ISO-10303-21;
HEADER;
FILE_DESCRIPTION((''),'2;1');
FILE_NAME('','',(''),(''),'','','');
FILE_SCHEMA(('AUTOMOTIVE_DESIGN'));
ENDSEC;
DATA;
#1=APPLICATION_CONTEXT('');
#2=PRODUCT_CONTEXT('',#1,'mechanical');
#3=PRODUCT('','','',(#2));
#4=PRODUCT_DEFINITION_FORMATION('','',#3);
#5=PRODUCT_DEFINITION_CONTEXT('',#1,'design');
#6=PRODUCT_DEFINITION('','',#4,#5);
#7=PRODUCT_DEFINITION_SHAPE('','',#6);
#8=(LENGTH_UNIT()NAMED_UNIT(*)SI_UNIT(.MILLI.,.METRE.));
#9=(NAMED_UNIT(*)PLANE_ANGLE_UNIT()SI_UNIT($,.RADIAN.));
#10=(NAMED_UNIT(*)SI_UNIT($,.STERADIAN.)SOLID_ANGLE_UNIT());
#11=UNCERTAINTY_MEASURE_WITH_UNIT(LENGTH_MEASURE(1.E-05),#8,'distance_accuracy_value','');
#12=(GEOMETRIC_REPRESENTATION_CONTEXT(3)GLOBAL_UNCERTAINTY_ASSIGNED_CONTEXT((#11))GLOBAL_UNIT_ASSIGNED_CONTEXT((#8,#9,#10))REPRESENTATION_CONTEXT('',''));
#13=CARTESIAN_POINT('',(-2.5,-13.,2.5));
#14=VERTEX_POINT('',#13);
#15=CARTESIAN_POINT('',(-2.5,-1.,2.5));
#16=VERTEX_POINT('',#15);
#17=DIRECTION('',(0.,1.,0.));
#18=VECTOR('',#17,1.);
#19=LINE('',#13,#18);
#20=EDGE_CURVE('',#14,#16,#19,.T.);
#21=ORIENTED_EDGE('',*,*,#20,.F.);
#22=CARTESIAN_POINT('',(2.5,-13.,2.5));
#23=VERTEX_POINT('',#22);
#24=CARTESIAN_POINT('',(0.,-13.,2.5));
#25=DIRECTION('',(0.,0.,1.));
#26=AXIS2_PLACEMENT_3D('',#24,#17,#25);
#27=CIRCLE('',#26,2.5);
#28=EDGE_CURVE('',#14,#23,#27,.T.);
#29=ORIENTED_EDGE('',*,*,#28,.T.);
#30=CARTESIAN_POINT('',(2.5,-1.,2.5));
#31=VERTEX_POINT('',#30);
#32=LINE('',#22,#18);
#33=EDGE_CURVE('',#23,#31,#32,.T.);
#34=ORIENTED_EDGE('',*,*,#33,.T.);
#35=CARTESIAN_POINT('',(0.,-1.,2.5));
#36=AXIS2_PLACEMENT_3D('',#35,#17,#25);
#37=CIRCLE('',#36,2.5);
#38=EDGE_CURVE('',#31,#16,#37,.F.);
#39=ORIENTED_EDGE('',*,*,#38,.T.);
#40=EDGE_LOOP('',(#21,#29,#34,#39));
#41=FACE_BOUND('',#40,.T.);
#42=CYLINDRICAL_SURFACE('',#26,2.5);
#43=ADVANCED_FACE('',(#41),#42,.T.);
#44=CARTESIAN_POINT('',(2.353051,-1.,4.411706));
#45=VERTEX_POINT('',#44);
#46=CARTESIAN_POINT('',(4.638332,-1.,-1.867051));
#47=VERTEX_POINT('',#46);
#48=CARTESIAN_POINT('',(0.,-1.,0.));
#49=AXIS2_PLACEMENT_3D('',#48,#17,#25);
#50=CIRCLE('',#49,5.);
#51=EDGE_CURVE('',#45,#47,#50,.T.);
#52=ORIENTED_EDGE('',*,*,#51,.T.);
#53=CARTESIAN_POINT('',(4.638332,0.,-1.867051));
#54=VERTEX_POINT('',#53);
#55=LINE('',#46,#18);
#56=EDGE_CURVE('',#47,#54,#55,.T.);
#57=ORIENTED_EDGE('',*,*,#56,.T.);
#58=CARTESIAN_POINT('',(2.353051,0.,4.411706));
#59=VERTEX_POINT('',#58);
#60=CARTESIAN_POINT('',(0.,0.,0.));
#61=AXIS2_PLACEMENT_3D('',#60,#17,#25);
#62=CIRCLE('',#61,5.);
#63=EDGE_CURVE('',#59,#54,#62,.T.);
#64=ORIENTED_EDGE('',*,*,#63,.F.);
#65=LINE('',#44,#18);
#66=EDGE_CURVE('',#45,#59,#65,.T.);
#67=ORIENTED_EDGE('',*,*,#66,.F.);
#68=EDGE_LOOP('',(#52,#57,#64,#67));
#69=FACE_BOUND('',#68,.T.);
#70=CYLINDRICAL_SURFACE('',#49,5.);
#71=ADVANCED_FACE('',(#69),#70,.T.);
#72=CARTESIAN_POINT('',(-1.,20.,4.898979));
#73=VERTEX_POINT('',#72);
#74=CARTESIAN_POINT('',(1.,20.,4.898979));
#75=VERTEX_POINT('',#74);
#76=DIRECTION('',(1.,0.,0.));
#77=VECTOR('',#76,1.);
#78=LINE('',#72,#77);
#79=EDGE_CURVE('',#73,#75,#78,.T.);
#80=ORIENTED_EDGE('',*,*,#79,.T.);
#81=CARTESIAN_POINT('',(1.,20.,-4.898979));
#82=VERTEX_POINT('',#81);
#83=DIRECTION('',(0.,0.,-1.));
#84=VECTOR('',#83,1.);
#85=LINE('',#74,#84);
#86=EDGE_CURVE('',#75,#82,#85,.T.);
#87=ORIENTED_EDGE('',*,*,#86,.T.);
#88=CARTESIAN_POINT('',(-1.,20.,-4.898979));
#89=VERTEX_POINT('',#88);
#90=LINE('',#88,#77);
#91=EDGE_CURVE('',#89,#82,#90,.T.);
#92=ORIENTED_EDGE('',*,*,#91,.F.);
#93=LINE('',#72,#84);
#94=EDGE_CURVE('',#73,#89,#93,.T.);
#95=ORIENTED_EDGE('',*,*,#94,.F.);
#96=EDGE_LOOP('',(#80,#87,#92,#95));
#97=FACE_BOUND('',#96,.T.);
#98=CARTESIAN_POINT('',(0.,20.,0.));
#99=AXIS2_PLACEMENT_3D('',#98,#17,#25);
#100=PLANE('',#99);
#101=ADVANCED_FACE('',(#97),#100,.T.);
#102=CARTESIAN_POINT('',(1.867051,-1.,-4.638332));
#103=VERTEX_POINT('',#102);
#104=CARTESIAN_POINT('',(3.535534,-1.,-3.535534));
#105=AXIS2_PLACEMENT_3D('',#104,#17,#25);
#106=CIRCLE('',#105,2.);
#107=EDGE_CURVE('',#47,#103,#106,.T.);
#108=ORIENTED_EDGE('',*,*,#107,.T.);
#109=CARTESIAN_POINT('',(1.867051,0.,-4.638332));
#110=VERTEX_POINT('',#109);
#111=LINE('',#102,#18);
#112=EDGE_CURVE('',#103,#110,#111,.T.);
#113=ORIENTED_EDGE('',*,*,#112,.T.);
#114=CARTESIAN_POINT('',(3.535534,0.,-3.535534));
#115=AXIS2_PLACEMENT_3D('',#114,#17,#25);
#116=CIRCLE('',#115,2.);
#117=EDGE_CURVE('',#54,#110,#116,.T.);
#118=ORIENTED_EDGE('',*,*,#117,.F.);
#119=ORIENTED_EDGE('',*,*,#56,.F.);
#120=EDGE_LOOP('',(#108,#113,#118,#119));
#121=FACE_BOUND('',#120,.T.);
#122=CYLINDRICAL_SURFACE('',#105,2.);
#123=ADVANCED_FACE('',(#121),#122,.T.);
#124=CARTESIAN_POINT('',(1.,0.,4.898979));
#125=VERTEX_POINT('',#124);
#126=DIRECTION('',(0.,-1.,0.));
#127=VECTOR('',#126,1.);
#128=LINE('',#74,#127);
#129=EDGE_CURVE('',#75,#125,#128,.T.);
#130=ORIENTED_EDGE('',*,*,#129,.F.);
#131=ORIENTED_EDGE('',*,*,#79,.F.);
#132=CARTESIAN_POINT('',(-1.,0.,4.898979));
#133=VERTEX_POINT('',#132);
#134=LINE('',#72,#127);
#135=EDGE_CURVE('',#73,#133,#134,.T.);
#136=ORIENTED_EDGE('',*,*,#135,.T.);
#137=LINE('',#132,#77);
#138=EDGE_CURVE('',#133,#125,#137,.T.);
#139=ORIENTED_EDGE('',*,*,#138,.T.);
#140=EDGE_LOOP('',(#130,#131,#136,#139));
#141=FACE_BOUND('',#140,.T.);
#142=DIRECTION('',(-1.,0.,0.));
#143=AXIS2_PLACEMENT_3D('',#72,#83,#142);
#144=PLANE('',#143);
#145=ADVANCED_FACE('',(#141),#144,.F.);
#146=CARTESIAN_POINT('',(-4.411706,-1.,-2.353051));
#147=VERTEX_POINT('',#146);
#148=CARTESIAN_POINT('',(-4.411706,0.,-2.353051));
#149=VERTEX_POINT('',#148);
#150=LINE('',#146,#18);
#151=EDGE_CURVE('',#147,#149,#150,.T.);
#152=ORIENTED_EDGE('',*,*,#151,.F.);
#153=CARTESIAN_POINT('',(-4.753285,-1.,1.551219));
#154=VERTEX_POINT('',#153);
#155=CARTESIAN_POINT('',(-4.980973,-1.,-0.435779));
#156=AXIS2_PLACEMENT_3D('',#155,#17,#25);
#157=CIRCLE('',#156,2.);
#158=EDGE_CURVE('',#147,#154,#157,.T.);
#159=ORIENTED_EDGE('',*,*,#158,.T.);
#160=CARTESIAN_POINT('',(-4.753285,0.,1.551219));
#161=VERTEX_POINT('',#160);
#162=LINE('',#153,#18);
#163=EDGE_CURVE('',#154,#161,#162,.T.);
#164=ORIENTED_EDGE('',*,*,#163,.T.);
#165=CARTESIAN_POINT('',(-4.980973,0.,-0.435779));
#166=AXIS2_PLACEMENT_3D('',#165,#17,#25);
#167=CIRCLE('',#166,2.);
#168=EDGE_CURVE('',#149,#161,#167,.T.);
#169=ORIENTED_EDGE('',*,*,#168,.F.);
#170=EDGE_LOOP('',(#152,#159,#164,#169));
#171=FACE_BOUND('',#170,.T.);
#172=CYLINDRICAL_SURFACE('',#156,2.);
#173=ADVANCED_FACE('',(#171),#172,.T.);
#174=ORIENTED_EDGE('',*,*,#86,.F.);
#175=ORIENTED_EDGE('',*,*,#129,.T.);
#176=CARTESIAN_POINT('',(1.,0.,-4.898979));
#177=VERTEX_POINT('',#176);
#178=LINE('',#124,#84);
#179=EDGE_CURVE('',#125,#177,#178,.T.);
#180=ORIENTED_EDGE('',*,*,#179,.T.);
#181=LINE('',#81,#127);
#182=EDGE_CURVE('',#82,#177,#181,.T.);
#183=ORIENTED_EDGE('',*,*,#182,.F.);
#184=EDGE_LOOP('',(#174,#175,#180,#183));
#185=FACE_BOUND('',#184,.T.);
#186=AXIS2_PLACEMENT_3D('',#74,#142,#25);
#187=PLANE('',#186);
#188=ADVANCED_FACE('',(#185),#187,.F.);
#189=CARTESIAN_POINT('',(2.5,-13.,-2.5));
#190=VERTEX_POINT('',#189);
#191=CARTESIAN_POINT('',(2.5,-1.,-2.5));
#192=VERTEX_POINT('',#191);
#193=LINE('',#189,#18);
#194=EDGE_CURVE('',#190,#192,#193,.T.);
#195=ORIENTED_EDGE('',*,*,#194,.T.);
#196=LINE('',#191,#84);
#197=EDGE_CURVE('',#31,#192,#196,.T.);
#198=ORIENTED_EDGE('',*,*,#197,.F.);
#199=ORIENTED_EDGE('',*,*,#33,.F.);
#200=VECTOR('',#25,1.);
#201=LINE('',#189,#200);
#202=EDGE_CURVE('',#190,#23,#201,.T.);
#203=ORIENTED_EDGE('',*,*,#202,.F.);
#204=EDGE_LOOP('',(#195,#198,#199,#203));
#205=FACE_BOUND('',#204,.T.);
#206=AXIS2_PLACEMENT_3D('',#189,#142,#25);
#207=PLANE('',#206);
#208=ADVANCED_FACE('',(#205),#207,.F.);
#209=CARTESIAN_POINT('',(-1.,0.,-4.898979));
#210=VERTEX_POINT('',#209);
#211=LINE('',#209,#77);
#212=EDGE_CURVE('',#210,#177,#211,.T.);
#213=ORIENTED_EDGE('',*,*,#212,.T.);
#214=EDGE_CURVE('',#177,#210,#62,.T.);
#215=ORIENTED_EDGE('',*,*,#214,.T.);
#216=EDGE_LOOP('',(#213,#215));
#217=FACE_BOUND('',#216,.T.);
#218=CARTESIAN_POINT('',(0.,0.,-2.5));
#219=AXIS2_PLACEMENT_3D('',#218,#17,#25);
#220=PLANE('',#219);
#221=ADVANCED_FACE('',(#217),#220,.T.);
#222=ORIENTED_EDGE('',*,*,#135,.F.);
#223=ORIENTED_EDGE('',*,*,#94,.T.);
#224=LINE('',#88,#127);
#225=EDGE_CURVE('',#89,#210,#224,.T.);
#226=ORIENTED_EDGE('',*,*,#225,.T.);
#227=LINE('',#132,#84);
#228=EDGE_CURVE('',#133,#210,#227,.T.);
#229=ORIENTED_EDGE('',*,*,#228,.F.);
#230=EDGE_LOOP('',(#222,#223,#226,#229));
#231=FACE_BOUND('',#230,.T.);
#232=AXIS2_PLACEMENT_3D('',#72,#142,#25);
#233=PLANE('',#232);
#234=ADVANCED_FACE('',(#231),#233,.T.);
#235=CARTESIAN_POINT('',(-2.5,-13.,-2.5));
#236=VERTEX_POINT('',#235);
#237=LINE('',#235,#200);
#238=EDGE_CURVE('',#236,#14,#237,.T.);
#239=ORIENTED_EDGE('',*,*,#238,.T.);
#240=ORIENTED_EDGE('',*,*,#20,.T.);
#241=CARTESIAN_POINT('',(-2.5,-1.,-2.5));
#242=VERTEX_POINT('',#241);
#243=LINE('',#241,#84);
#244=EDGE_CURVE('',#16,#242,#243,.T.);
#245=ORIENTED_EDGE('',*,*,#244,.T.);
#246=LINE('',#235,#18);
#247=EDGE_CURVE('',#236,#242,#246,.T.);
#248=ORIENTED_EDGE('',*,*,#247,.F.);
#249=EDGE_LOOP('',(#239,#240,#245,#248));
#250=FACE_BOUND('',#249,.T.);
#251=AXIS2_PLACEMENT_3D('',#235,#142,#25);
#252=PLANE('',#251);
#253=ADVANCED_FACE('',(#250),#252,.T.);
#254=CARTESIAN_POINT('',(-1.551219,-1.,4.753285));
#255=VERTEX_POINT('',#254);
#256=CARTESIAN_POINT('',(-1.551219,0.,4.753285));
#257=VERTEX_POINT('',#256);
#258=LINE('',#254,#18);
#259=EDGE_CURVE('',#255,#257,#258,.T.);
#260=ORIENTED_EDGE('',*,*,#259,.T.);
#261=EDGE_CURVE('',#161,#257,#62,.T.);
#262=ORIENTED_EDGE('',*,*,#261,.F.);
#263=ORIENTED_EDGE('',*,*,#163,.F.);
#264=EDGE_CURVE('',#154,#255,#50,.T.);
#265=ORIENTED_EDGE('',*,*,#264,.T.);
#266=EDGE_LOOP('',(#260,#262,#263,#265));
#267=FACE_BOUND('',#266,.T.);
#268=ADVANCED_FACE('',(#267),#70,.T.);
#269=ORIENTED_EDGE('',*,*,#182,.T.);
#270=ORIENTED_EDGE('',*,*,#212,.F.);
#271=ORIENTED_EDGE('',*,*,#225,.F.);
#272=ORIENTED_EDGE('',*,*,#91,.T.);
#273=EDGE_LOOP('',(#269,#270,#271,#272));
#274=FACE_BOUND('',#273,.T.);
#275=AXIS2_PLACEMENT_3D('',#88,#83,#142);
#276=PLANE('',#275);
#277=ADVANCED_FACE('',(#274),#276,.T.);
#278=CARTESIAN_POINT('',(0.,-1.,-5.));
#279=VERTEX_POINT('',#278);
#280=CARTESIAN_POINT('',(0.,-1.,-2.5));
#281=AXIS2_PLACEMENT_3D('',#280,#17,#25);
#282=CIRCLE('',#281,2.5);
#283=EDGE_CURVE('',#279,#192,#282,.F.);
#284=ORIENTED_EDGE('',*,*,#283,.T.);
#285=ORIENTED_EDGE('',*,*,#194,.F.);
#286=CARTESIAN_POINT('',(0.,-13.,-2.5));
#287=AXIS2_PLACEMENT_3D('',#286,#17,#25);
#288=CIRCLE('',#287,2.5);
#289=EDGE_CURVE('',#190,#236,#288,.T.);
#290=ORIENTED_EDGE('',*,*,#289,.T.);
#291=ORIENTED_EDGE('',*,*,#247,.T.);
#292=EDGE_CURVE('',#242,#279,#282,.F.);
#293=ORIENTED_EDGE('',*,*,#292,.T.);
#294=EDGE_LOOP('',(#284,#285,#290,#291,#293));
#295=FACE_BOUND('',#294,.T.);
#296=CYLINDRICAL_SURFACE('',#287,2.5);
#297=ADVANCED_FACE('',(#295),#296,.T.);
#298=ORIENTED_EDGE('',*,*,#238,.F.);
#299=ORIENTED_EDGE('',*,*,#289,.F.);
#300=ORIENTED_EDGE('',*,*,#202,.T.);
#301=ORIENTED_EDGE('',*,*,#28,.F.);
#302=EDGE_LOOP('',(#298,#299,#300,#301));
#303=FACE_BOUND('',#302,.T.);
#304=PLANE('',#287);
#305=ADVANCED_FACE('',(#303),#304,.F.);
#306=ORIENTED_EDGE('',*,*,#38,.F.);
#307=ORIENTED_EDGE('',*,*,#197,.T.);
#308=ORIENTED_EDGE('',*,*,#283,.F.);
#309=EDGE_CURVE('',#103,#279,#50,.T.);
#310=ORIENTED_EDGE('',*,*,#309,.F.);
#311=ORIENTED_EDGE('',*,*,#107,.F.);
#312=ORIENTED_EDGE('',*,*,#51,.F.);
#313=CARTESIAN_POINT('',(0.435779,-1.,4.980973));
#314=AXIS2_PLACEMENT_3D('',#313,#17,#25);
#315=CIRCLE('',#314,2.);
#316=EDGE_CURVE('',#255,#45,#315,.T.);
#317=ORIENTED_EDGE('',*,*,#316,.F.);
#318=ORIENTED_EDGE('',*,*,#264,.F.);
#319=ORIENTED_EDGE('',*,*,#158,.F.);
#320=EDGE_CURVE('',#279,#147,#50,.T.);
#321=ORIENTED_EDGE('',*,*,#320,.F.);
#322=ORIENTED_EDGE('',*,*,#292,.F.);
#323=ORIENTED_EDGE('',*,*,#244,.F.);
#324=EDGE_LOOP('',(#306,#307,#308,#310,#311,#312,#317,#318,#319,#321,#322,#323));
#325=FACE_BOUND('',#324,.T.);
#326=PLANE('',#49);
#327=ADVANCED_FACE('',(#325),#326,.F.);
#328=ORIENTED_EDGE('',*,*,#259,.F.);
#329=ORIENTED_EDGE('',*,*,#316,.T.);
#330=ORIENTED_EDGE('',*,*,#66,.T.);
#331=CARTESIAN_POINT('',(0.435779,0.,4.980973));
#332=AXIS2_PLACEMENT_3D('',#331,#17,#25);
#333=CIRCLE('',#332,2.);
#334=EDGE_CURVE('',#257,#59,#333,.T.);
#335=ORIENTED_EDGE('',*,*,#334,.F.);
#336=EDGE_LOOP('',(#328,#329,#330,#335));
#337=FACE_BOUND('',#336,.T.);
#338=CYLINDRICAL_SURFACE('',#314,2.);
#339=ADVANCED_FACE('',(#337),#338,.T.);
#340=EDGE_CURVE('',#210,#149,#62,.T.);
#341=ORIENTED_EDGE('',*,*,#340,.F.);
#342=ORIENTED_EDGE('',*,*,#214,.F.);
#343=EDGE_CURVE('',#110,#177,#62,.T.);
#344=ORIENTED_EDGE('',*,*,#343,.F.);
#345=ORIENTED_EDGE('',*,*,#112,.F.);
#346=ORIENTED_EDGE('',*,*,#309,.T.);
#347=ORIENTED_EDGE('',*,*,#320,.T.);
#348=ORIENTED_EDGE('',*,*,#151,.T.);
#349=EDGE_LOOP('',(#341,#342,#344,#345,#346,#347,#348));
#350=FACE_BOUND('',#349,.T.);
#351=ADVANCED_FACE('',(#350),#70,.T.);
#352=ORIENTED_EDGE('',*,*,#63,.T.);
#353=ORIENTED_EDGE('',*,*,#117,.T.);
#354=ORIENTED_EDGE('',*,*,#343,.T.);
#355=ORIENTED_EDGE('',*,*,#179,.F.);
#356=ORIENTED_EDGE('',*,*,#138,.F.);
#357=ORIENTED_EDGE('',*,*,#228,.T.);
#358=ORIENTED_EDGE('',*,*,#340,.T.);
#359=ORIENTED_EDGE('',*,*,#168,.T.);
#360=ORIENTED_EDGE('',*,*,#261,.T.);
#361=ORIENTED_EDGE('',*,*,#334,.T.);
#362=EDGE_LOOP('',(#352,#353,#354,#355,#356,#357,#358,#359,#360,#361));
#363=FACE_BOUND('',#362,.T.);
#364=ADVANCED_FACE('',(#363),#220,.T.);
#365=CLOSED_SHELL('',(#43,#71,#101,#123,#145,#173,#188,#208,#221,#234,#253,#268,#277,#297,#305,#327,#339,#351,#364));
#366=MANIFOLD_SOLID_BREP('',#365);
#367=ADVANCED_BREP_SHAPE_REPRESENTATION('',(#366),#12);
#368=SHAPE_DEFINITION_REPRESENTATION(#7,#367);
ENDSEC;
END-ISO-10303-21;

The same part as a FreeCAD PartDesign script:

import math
import FreeCAD as App
import Part
import Sketcher

doc = App.newDocument("Part")
body = doc.addObject("PartDesign::Body", "Body")

sketch1 = body.newObject("Sketcher::SketchObject", "Sketch")
sketch1.AttachmentSupport = (doc.getObject("XZ_Plane"), [""])
sketch1.MapMode = "FlatFace"
sketch1.addGeometry([
    Part.LineSegment(App.Vector(2.5, 2.5, 0), App.Vector(2.5, -2.5, 0)),
    Part.ArcOfCircle(Part.Circle(App.Vector(0, -2.5, 0), App.Vector(0, 0, 1), 2.5), math.radians(180), math.radians(360)),
    Part.LineSegment(App.Vector(-2.5, -2.5, 0), App.Vector(-2.5, 2.5, 0)),
    Part.ArcOfCircle(Part.Circle(App.Vector(0, 2.5, 0), App.Vector(0, 0, 1), 2.5), math.radians(0), math.radians(180)),
], False)
sketch1.addConstraint([
    Sketcher.Constraint("Tangent", 0, 2, 1, 2),
    Sketcher.Constraint("Tangent", 1, 1, 2, 1),
    Sketcher.Constraint("Tangent", 2, 2, 3, 2),
    Sketcher.Constraint("Tangent", 3, 1, 0, 1),
    Sketcher.Constraint("Vertical", 0),
    Sketcher.Constraint("Vertical", 2),
    Sketcher.Constraint("Symmetric", 1, 3, 3, 3, -1, 1),
    Sketcher.Constraint("Radius", 1, 2.5),
    Sketcher.Constraint("DistanceY", 0, 2, 0, 1, 5.0),
])
pad1 = body.newObject("PartDesign::Pad", "Pad")
pad1.Profile = sketch1
pad1.Length = 13

sketch2 = body.newObject("Sketcher::SketchObject", "Sketch001")
sketch2.AttachmentSupport = (doc.getObject("XZ_Plane"), [""])
sketch2.MapMode = "FlatFace"
sketch2.addGeometry([
    Part.ArcOfCircle(Part.Circle(App.Vector(0, 0, 0), App.Vector(0, 0, 1), 5), math.radians(-152), math.radians(-68)),
    Part.ArcOfCircle(Part.Circle(App.Vector(-5, -0.4, 0), App.Vector(0, 0, 1), 2), math.radians(83), math.radians(287)),
    Part.ArcOfCircle(Part.Circle(App.Vector(0, 0, 0), App.Vector(0, 0, 1), 5), math.radians(108), math.radians(162)),
    Part.ArcOfCircle(Part.Circle(App.Vector(0.4, 5, 0), App.Vector(0, 0, 1), 2), math.radians(-17), math.radians(187)),
    Part.ArcOfCircle(Part.Circle(App.Vector(0, 0, 0), App.Vector(0, 0, 1), 5), math.radians(-22), math.radians(62)),
    Part.ArcOfCircle(Part.Circle(App.Vector(3.5, -3.5, 0), App.Vector(0, 0, 1), 2), math.radians(-147), math.radians(57)),
], False)
sketch2.addConstraint([
    Sketcher.Constraint("Coincident", 0, 1, 1, 2),
    Sketcher.Constraint("Coincident", 1, 1, 2, 2),
    Sketcher.Constraint("Coincident", 2, 1, 3, 2),
    Sketcher.Constraint("Coincident", 3, 1, 4, 2),
    Sketcher.Constraint("Coincident", 4, 1, 5, 2),
    Sketcher.Constraint("Coincident", 5, 1, 0, 2),
    Sketcher.Constraint("Coincident", 0, 3, -1, 1),
    Sketcher.Constraint("Coincident", 2, 3, -1, 1),
    Sketcher.Constraint("Coincident", 4, 3, -1, 1),
    Sketcher.Constraint("Equal", 0, 2),
    Sketcher.Constraint("Equal", 1, 3),
    Sketcher.Constraint("Equal", 2, 4),
    Sketcher.Constraint("Equal", 3, 5),
    Sketcher.Constraint("Radius", 0, 5.0),
    Sketcher.Constraint("Radius", 1, 2.0),
    Sketcher.Constraint("DistanceY", 1, 3, -1, 1, 0.435779),
    Sketcher.Constraint("DistanceX", -1, 1, 3, 3, 0.435779),
    Sketcher.Constraint("DistanceY", 0, 1, -1, 1, 2.353051),
    Sketcher.Constraint("DistanceX", 2, 1, -1, 1, 1.551219),
    Sketcher.Constraint("DistanceX", -1, 1, 4, 1, 4.638332),
    Sketcher.Constraint("DistanceX", -1, 1, 5, 1, 1.867051),
])
pad2 = body.newObject("PartDesign::Pad", "Pad001")
pad2.Profile = sketch2
pad2.Length = 1

sketch3 = body.newObject("Sketcher::SketchObject", "Sketch002")
sketch3.AttachmentSupport = (doc.getObject("XZ_Plane"), [""])
sketch3.MapMode = "FlatFace"
sketch3.addGeometry([
    Part.LineSegment(App.Vector(-1, -4.9, 0), App.Vector(-1, 4.9, 0)),
    Part.LineSegment(App.Vector(-1, 4.9, 0), App.Vector(1, 4.9, 0)),
    Part.LineSegment(App.Vector(1, 4.9, 0), App.Vector(1, -4.9, 0)),
    Part.LineSegment(App.Vector(1, -4.9, 0), App.Vector(-1, -4.9, 0)),
], False)
sketch3.addConstraint([
    Sketcher.Constraint("Coincident", 0, 2, 1, 1),
    Sketcher.Constraint("Coincident", 1, 2, 2, 1),
    Sketcher.Constraint("Coincident", 2, 2, 3, 1),
    Sketcher.Constraint("Coincident", 3, 2, 0, 1),
    Sketcher.Constraint("Vertical", 0),
    Sketcher.Constraint("Horizontal", 1),
    Sketcher.Constraint("Vertical", 2),
    Sketcher.Constraint("Horizontal", 3),
    Sketcher.Constraint("Symmetric", 0, 2, 2, 2, -1, 1),
    Sketcher.Constraint("DistanceX", 1, 1, 1, 2, 2.0),
    Sketcher.Constraint("DistanceY", 0, 1, 0, 2, 9.797959),
])
pad3 = body.newObject("PartDesign::Pad", "Pad002")
pad3.Profile = sketch3
pad3.Length = 20
pad3.Reversed = True

doc.recompute()
